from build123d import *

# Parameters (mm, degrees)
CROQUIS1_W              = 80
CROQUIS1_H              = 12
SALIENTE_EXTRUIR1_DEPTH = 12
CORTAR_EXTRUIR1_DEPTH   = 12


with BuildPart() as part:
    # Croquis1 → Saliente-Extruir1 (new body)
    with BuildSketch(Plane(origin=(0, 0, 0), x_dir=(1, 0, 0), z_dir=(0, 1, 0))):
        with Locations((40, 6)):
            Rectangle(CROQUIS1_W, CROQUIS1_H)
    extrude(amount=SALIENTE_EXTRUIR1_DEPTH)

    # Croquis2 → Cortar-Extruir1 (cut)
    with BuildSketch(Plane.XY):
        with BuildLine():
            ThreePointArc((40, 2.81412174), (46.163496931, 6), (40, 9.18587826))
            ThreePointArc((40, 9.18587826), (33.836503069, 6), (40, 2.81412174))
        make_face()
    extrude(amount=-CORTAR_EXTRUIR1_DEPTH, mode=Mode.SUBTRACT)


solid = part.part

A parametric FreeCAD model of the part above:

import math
import FreeCAD as App
import Part
import Sketcher

V = App.Vector
Q = App.Units.Quantity


def add_polygon(sketch, points):
    """Adds a closed chain of lines whose ends are joined by coincident constraints."""
    first, n = sketch.GeometryCount, len(points)
    for a, b in zip(points, points[1:] + points[:1]):
        sketch.addGeometry(Part.LineSegment(App.Vector(*a, 0), App.Vector(*b, 0)), False)
    for i in range(n):
        sketch.addConstraint(Sketcher.Constraint("Coincident", first + i, 2, first + (i + 1) % n, 1))

doc = App.newDocument("Part")
params = doc.addObject("Spreadsheet::Sheet", "Params")
for row, (alias, value) in enumerate([
    ("sketch1_width", "80 mm"),
    ("sketch1_height", "12 mm"),
    ("pad1_length", "12 mm"),
    ("pocket1_length", "12 mm"),
], start=1):
    params.set(f"A{row}", alias)
    params.set(f"B{row}", "=" + value)
    params.setAlias(f"B{row}", alias)

body = doc.addObject("PartDesign::Body", "Body")

# Sketch on XZ plane
sketch1 = body.newObject("Sketcher::SketchObject", "Sketch")
sketch1.AttachmentSupport = (doc.getObject("XZ_Plane"), [""])
sketch1.MapMode = "FlatFace"
add_polygon(sketch1, [(0, -12), (0, 0), (80, 0), (80, -12)])  # lines 0-3
sketch1.addConstraint([
    Sketcher.Constraint("Vertical", 0),
    Sketcher.Constraint("Horizontal", 1),
    Sketcher.Constraint("Vertical", 2),
    Sketcher.Constraint("Horizontal", 3),
    Sketcher.Constraint("Coincident", 0, 2, -1, 1),
    Sketcher.Constraint("DistanceX", 1, 1, 1, 2, Q("80 mm")),
    Sketcher.Constraint("DistanceY", 0, 1, 0, 2, Q("12 mm")),
])
sketch1.setExpression("Constraints[9]", "Params.sketch1_width")
sketch1.setExpression("Constraints[10]", "Params.sketch1_height")
pad1 = body.newObject("PartDesign::Pad", "Pad")
pad1.Profile = sketch1
pad1.setExpression("Length", "Params.pad1_length")
pad1.Reversed = True

# Sketch on XY plane
sketch2 = body.newObject("Sketcher::SketchObject", "Sketch001")
sketch2.AttachmentSupport = (doc.getObject("XY_Plane"), [""])
sketch2.MapMode = "FlatFace"
sketch2.addGeometry([
    Part.ArcOfCircle(Part.Circle(V(42.3, 6, 0), V(0, 0, 1), 3.9), math.radians(-125), math.radians(125)),
    Part.ArcOfCircle(Part.Circle(V(37.7, 6, 0), V(0, 0, 1), 3.9), math.radians(55), math.radians(305)),
], False)
sketch2.addConstraint([
    Sketcher.Constraint("Coincident", 0, 1, 1, 2),
    Sketcher.Constraint("Coincident", 1, 1, 0, 2),
    Sketcher.Constraint("Equal", 0, 1),
    Sketcher.Constraint("Horizontal", 0, 3, 1, 3),
    Sketcher.Constraint("DistanceY", -1, 1, 0, 3, Q("6 mm")),
    Sketcher.Constraint("DistanceX", -1, 1, 0, 1, Q("40 mm")),
    Sketcher.Constraint("Radius", 0, Q("3.90513 mm")),
    Sketcher.Constraint("DistanceY", -1, 1, 0, 1, Q("2.814122 mm")),
])
pocket1 = body.newObject("PartDesign::Pocket", "Pocket")
pocket1.Profile = sketch2
pocket1.setExpression("Length", "Params.pocket1_length")

doc.recompute()
